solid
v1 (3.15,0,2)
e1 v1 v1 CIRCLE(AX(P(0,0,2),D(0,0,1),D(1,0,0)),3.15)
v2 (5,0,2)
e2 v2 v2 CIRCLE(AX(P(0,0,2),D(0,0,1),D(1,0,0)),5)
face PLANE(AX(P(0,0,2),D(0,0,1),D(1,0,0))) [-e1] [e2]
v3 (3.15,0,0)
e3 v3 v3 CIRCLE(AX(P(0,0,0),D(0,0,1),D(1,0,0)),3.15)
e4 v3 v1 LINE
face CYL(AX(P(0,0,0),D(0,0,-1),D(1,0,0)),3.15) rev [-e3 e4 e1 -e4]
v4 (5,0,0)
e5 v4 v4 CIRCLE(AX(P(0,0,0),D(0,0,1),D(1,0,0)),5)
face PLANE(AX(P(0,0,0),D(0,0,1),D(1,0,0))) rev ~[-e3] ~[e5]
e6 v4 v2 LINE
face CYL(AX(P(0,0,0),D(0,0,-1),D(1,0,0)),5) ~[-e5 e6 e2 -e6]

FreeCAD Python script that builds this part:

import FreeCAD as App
import Part
import Sketcher
Q = App.Units.Quantity

doc = App.newDocument("Part")
body = doc.addObject("PartDesign::Body", "Body")

# Sketch on XY plane
sketch1 = body.newObject("Sketcher::SketchObject", "Sketch")
sketch1.AttachmentSupport = (doc.getObject("XY_Plane"), [""])
sketch1.MapMode = "FlatFace"
sketch1.addGeometry([
    Part.Circle(App.Vector(0, 0, 0), App.Vector(0, 0, 1), 5),
    Part.Circle(App.Vector(0, 0, 0), App.Vector(0, 0, 1), 3.15),
], False)
sketch1.addConstraint([
    Sketcher.Constraint("Coincident", 0, 3, -1, 1),
    Sketcher.Constraint("Coincident", 1, 3, -1, 1),
    Sketcher.Constraint("Diameter", 0, Q("10 mm")),
    Sketcher.Constraint("Diameter", 1, Q("6.3 mm")),
])
pad1 = body.newObject("PartDesign::Pad", "Pad")
pad1.Profile = sketch1
pad1.Length = 2

doc.recompute()
